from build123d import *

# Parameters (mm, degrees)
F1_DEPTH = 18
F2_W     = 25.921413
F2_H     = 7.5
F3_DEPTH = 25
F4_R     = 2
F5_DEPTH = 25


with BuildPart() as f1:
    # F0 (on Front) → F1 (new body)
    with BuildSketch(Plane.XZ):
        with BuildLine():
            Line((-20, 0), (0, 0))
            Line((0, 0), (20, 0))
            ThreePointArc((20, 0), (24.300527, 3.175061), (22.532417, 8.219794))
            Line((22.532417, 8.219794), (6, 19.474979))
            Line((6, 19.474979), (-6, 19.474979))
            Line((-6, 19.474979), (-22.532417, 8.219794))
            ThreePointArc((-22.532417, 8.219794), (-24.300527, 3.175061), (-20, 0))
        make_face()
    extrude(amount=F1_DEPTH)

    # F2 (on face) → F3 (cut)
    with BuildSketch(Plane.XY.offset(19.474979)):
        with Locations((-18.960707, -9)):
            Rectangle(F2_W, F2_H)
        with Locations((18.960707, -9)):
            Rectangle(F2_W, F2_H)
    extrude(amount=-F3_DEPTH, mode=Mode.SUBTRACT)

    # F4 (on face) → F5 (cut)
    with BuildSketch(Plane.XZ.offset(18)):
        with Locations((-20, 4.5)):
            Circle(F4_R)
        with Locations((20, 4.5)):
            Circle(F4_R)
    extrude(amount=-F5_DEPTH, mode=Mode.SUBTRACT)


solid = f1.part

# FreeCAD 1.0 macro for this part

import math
import FreeCAD as App
import Part
import Sketcher
Q = App.Units.Quantity

doc = App.newDocument("Part")
body = doc.addObject("PartDesign::Body", "Body")

# Sketch on XZ plane
sketch1 = doc.addObject("Sketcher::SketchObject", "Sketch")
body.addObject(sketch1)
sketch1.AttachmentSupport = (doc.XZ_Plane, [""])
sketch1.MapMode = "FlatFace"
sketch1.addGeometry(Part.LineSegment(App.Vector(-20, 0, 0), App.Vector(20, 0, 0)), False)
sketch1.addGeometry(Part.ArcOfCircle(Part.Circle(App.Vector(20, 4.5, 0), App.Vector(0, 0, 1), 4.5), math.radians(-90), math.radians(56)), False)
sketch1.addGeometry(Part.LineSegment(App.Vector(22.5, 8.2, 0), App.Vector(6, 19.5, 0)), False)
sketch1.addGeometry(Part.LineSegment(App.Vector(6, 19.5, 0), App.Vector(-6, 19.5, 0)), False)
sketch1.addGeometry(Part.LineSegment(App.Vector(-6, 19.5, 0), App.Vector(-22.5, 8.2, 0)), False)
sketch1.addGeometry(Part.ArcOfCircle(Part.Circle(App.Vector(-20, 4.5, 0), App.Vector(0, 0, 1), 4.5), math.radians(124), math.radians(270)), False)
sketch1.addConstraint(Sketcher.Constraint("Tangent", 0, 2, 1, 1))
sketch1.addConstraint(Sketcher.Constraint("Tangent", 1, 2, 2, 1))
sketch1.addConstraint(Sketcher.Constraint("Coincident", 2, 2, 3, 1))
sketch1.addConstraint(Sketcher.Constraint("Coincident", 3, 2, 4, 1))
sketch1.addConstraint(Sketcher.Constraint("Tangent", 4, 2, 5, 1))
sketch1.addConstraint(Sketcher.Constraint("Tangent", 5, 2, 0, 1))
sketch1.addConstraint(Sketcher.Constraint("Horizontal", 0))
sketch1.addConstraint(Sketcher.Constraint("Horizontal", 3))
sketch1.addConstraint(Sketcher.Constraint("Equal", 1, 5))
sketch1.addConstraint(Sketcher.Constraint("Symmetric", 0, 2, 5, 2, -1, 1))
sketch1.addConstraint(Sketcher.Constraint("Horizontal", 1, 2, 4, 2))
sketch1.addConstraint(Sketcher.Constraint("Radius", 1, Q("4.5 mm")))
sketch1.addConstraint(Sketcher.Constraint("DistanceX", 0, 1, 0, 2, Q("40 mm")))
sketch1.addConstraint(Sketcher.Constraint("DistanceX", 3, 2, 3, 1, Q("12 mm")))
sketch1.addConstraint(Sketcher.Constraint("Distance", 2, Q("20 mm")))
pad1 = doc.addObject("PartDesign::Pad", "Pad")
body.addObject(pad1)
pad1.Profile = sketch1
pad1.Length = 18

# Sketch on XY plane
sketch2 = doc.addObject("Sketcher::SketchObject", "Sketch001")
body.addObject(sketch2)
sketch2.AttachmentSupport = (doc.XY_Plane, [""])
sketch2.MapMode = "FlatFace"
sketch2.AttachmentOffset = App.Placement(App.Vector(0, 0, 19.474979), App.Rotation())
sketch2.addGeometry(Part.LineSegment(App.Vector(-32, -5, 0), App.Vector(-32, -13, 0)), False)
sketch2.addGeometry(Part.LineSegment(App.Vector(-32, -13, 0), App.Vector(-6, -13, 0)), False)
sketch2.addGeometry(Part.LineSegment(App.Vector(-6, -13, 0), App.Vector(-6, -5, 0)), False)
sketch2.addGeometry(Part.LineSegment(App.Vector(-6, -5, 0), App.Vector(-32, -5, 0)), False)
sketch2.addGeometry(Part.LineSegment(App.Vector(6, -5, 0), App.Vector(6, -13, 0)), False)
sketch2.addGeometry(Part.LineSegment(App.Vector(6, -13, 0), App.Vector(32, -13, 0)), False)
sketch2.addGeometry(Part.LineSegment(App.Vector(32, -13, 0), App.Vector(32, -5, 0)), False)
sketch2.addGeometry(Part.LineSegment(App.Vector(32, -5, 0), App.Vector(6, -5, 0)), False)
sketch2.addConstraint(Sketcher.Constraint("Coincident", 0, 2, 1, 1))
sketch2.addConstraint(Sketcher.Constraint("Coincident", 1, 2, 2, 1))
sketch2.addConstraint(Sketcher.Constraint("Coincident", 2, 2, 3, 1))
sketch2.addConstraint(Sketcher.Constraint("Coincident", 3, 2, 0, 1))
sketch2.addConstraint(Sketcher.Constraint("Coincident", 4, 2, 5, 1))
sketch2.addConstraint(Sketcher.Constraint("Coincident", 5, 2, 6, 1))
sketch2.addConstraint(Sketcher.Constraint("Coincident", 6, 2, 7, 1))
sketch2.addConstraint(Sketcher.Constraint("Coincident", 7, 2, 4, 1))
sketch2.addConstraint(Sketcher.Constraint("Vertical", 0))
sketch2.addConstraint(Sketcher.Constraint("Horizontal", 1))
sketch2.addConstraint(Sketcher.Constraint("Vertical", 2))
sketch2.addConstraint(Sketcher.Constraint("Horizontal", 3))
sketch2.addConstraint(Sketcher.Constraint("Vertical", 4))
sketch2.addConstraint(Sketcher.Constraint("Horizontal", 5))
sketch2.addConstraint(Sketcher.Constraint("Vertical", 6))
sketch2.addConstraint(Sketcher.Constraint("Horizontal", 7))
sketch2.addConstraint(Sketcher.Constraint("Symmetric", 1, 2, 4, 2, -2))
sketch2.addConstraint(Sketcher.Constraint("Symmetric", 3, 2, 6, 2, -2))
sketch2.addConstraint(Sketcher.Constraint("DistanceY", 0, 2, 0, 1, Q("7.5 mm")))
sketch2.addConstraint(Sketcher.Constraint("DistanceX", 1, 2, -1, 1, Q("6 mm")))
sketch2.addConstraint(Sketcher.Constraint("DistanceY", 0, 2, -1, 1, Q("12.75 mm")))
sketch2.addConstraint(Sketcher.Constraint("DistanceX", 1, 1, 1, 2, Q("25.921413 mm")))
pocket1 = doc.addObject("PartDesign::Pocket", "Pocket")
body.addObject(pocket1)
pocket1.Profile = sketch2
pocket1.Length = 25

# Sketch on XZ plane
sketch3 = doc.addObject("Sketcher::SketchObject", "Sketch002")
body.addObject(sketch3)
sketch3.AttachmentSupport = (doc.XZ_Plane, [""])
sketch3.MapMode = "FlatFace"
sketch3.AttachmentOffset = App.Placement(App.Vector(0, 0, 18), App.Rotation())
sketch3.addGeometry(Part.Circle(App.Vector(-20, 4.5, 0), App.Vector(0, 0, 1), 2), False)
sketch3.addGeometry(Part.Circle(App.Vector(20, 4.5, 0), App.Vector(0, 0, 1), 2), False)
sketch3.addConstraint(Sketcher.Constraint("Equal", 0, 1))
sketch3.addConstraint(Sketcher.Constraint("Symmetric", 0, 3, 1, 3, -2))
sketch3.addConstraint(Sketcher.Constraint("Diameter", 0, Q("4 mm")))
sketch3.addConstraint(Sketcher.Constraint("DistanceX", 0, 3, -1, 1, Q("20 mm")))
sketch3.addConstraint(Sketcher.Constraint("DistanceY", -1, 1, 0, 3, Q("4.5 mm")))
pocket2 = doc.addObject("PartDesign::Pocket", "Pocket001")
body.addObject(pocket2)
pocket2.Profile = sketch3
pocket2.Length = 25

doc.recompute()
